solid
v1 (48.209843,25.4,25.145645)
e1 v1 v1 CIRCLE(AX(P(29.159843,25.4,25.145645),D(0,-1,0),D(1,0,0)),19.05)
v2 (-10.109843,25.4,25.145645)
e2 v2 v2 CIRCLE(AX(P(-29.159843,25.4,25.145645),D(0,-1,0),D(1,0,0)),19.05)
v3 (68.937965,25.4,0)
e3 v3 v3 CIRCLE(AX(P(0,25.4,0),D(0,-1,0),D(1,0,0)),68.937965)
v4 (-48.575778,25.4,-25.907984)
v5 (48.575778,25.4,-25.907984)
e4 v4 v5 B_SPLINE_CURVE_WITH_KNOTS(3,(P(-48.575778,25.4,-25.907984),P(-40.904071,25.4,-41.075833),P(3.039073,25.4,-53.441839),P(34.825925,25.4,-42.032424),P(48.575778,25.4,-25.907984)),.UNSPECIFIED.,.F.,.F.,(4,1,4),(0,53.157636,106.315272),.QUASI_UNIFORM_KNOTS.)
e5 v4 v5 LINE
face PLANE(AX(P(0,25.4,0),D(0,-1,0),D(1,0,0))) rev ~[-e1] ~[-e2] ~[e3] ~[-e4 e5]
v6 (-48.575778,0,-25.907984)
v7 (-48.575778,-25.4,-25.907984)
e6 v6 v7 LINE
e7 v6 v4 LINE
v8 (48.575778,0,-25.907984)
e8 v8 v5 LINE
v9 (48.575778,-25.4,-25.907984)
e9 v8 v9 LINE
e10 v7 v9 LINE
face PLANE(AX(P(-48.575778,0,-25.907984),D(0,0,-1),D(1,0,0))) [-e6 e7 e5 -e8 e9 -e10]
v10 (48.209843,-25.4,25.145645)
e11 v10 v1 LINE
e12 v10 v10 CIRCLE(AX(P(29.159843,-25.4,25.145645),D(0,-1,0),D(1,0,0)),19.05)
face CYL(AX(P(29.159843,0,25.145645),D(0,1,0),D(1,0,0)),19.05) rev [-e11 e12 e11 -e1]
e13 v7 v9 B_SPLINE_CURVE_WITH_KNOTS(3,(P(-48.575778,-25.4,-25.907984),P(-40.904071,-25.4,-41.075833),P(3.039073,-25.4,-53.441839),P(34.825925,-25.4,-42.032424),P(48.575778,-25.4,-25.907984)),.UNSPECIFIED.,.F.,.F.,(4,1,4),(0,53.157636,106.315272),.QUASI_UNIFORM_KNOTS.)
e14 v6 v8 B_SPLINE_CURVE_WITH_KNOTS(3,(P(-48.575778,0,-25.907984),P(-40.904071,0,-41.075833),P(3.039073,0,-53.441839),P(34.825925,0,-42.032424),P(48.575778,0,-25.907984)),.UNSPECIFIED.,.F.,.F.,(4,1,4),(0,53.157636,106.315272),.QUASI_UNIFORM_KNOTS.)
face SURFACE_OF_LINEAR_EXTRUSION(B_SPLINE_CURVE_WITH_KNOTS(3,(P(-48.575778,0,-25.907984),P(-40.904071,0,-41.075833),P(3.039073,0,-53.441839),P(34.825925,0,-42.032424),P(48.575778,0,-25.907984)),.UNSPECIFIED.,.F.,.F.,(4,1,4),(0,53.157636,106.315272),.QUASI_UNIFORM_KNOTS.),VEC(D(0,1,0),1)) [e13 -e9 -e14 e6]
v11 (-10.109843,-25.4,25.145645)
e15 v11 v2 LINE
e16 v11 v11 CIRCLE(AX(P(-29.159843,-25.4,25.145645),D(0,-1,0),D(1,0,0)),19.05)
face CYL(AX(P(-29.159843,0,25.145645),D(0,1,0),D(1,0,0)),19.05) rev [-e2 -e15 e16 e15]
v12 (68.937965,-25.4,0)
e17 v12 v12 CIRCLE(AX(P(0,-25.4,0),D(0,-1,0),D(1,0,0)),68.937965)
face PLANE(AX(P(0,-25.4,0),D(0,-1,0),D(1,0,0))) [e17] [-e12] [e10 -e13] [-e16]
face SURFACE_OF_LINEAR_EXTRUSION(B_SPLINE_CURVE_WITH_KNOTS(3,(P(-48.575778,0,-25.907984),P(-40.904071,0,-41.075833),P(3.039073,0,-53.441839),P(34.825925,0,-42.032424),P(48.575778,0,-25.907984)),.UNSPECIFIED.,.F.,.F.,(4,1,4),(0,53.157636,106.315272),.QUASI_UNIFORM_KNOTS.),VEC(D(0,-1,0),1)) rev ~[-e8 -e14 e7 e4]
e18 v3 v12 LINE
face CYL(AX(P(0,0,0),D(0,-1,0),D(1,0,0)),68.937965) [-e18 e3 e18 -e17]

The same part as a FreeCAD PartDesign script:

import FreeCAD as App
import Part
import Sketcher
from FreeCAD import Vector
Q = App.Units.Quantity

doc = App.newDocument("Part")
body = doc.addObject("PartDesign::Body", "Body")

# Sketch on XZ plane
sketch1 = doc.addObject("Sketcher::SketchObject", "Sketch")
body.addObject(sketch1)
sketch1.AttachmentSupport = (doc.XZ_Plane, [""])
sketch1.MapMode = "FlatFace"
sketch1.addGeometry([
    Part.Circle(Vector(0, 0, 0), Vector(0, 0, 1), 68.937965),  # 0
    Part.BSplineCurve([Vector(-48.575778, -25.907984, 0), Vector(-40.904071, -41.075833, 0), Vector(3.039073, -53.441839, 0), Vector(34.825925, -42.032424, 0), Vector(48.575778, -25.907984, 0)], [4, 1, 4], [0, 53.157636, 106.315272], False, 3, [1, 1, 1, 1, 1], False),  # 1
    Part.LineSegment(Vector(-48.575778, -25.907984, 0), Vector(48.575778, -25.907984, 0)),  # 2
    Part.Circle(Vector(-29.159843, 25.145645, 0), Vector(0, 0, 1), 19.05),  # 3
    Part.Circle(Vector(29.159843, 25.145645, 0), Vector(0, 0, 1), 19.05),  # 4
], False)
sketch1.addConstraint([
    Sketcher.Constraint("Block", 1),
    Sketcher.Constraint("Coincident", 1, 1, 2, 1),
    Sketcher.Constraint("Coincident", 2, 2, 1, 2),
    Sketcher.Constraint("Coincident", 0, 3, -1, 1),
    Sketcher.Constraint("Equal", 3, 4),
    Sketcher.Constraint("Symmetric", 3, 3, 4, 3, -2),
    Sketcher.Constraint("Diameter", 3, Q("1.5 in")),
    Sketcher.Constraint("Diameter", 0, 137.87593),
    Sketcher.Constraint("DistanceY", 2, 2, 4, 3, 51.053629),
    Sketcher.Constraint("DistanceX", 3, 3, 2, 2, 77.735621),
])
pad1 = doc.addObject("PartDesign::Pad", "Pad")
body.addObject(pad1)
pad1.Profile = sketch1
pad1.Length = Q("2 in")
pad1.Midplane = True

doc.recompute()
